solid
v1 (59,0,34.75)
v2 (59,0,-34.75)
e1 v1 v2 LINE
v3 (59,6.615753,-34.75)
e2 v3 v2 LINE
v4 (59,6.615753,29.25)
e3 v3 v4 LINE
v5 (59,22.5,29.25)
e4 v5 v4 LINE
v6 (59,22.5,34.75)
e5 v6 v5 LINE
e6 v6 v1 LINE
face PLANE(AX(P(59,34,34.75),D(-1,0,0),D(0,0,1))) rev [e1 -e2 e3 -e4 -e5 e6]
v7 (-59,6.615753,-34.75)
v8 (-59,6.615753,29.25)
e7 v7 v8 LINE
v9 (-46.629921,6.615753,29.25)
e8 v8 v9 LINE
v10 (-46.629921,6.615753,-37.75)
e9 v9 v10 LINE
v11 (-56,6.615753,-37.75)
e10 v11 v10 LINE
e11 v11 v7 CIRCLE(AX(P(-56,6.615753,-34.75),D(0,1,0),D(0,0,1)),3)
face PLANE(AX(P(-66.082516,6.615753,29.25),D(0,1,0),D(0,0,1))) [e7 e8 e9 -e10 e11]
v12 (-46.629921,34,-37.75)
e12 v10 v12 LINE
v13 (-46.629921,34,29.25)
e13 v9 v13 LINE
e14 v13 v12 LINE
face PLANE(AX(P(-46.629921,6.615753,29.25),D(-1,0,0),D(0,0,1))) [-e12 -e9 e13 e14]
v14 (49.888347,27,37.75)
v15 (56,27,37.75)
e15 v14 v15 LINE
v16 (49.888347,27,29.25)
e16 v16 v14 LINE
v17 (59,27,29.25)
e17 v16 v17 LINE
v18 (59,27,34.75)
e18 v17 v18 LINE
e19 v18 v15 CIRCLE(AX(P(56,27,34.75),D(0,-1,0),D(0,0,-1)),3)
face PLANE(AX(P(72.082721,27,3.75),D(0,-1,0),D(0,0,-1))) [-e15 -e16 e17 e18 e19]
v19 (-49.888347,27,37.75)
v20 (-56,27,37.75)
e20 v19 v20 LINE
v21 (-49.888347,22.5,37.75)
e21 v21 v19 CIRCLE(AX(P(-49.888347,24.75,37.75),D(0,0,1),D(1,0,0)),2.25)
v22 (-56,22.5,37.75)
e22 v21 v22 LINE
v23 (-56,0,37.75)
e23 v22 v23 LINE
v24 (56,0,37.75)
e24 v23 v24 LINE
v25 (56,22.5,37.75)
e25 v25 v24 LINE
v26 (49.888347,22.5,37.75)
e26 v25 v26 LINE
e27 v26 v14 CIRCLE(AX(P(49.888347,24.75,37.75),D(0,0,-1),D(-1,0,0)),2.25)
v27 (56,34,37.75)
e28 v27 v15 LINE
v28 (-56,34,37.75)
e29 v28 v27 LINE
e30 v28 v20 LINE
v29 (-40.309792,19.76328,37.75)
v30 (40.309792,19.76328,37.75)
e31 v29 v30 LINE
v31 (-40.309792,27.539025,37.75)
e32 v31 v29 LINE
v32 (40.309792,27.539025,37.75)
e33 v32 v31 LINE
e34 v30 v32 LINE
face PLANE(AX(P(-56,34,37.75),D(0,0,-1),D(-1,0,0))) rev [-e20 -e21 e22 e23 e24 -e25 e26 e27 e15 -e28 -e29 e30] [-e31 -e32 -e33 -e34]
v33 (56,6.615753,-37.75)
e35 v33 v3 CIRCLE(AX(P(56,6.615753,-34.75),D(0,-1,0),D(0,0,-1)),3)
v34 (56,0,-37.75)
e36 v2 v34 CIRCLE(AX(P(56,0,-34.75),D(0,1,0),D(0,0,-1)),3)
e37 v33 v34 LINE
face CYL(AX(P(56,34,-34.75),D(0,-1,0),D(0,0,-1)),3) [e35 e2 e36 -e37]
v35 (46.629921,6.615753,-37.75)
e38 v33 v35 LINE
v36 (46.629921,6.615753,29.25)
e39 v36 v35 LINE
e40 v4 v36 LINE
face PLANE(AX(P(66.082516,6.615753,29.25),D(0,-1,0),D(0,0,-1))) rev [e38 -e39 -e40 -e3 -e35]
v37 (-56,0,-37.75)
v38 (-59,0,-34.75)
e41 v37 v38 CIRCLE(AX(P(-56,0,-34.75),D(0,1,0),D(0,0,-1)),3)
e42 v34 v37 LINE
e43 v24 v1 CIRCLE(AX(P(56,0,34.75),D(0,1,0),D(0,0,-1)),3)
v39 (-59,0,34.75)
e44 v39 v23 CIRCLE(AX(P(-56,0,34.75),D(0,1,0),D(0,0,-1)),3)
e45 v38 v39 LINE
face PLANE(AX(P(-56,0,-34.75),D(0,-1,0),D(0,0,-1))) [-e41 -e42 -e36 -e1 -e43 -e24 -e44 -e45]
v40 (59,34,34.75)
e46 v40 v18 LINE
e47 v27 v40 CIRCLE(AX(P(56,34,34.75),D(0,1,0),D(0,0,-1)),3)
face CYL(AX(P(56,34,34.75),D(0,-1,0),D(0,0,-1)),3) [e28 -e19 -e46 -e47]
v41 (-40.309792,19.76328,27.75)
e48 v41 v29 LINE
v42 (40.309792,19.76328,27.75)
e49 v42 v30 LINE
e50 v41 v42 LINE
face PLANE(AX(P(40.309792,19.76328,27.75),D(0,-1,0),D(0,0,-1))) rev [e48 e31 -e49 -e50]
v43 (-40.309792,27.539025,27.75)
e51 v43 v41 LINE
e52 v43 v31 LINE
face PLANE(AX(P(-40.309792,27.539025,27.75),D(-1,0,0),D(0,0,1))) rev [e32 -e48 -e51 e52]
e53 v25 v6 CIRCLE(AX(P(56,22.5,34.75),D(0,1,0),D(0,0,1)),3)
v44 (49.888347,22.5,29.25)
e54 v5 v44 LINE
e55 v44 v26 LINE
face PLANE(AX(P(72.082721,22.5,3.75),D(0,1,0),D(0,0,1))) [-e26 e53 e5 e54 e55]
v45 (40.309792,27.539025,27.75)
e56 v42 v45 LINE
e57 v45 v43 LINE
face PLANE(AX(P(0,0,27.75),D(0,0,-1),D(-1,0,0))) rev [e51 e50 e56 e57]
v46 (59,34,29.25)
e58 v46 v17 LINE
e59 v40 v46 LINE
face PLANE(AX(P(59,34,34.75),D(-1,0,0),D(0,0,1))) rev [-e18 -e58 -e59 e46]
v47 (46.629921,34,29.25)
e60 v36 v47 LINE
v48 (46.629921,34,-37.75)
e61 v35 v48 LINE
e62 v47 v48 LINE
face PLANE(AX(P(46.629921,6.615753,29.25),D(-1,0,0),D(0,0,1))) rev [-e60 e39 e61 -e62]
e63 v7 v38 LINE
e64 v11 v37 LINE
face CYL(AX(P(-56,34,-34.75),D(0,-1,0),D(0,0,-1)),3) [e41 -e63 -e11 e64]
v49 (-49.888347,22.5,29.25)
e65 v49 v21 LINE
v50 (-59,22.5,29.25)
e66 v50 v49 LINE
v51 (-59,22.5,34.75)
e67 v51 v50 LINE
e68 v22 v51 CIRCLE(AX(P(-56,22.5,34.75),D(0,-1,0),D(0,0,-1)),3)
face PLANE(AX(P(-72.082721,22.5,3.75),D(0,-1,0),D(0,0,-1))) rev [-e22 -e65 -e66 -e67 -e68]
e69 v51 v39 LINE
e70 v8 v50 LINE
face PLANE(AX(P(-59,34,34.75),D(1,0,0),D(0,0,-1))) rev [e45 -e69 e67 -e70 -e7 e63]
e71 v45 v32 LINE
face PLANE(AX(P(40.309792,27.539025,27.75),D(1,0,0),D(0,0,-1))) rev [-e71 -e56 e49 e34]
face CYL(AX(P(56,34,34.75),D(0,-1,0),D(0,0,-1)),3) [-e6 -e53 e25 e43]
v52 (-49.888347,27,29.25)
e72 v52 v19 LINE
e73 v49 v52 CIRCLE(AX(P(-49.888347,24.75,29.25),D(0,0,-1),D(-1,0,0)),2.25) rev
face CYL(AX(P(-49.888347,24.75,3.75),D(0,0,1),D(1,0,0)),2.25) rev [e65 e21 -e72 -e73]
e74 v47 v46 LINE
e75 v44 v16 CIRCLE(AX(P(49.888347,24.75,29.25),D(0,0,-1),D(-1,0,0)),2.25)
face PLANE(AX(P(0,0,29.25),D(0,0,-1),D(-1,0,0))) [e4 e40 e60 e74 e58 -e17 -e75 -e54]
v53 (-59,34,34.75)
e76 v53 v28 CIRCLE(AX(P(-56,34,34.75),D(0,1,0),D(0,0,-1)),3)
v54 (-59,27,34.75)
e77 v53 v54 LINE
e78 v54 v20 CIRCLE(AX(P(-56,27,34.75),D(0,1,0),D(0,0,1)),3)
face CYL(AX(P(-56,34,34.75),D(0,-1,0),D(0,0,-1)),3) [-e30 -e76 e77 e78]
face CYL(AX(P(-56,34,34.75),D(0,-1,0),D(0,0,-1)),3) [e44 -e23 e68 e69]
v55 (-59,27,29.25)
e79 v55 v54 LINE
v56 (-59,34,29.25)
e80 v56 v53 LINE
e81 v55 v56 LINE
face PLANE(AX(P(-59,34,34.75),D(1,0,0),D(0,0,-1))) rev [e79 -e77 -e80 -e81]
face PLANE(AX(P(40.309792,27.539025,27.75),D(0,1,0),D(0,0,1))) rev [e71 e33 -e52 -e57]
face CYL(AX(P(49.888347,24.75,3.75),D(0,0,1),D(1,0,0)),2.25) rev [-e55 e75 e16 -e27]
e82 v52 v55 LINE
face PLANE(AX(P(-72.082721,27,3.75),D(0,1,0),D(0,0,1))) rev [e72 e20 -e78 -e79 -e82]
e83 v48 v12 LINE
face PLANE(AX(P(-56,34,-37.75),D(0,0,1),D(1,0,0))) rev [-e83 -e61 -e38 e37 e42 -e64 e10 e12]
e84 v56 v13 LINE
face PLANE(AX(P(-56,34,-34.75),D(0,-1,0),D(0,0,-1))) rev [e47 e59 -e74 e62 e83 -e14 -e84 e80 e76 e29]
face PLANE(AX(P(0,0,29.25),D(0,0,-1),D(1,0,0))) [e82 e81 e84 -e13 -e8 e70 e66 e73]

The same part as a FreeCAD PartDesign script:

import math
import FreeCAD as App
import Part
import Sketcher
from FreeCAD import Vector


def add_polygon(sketch, points):
    """Adds a closed chain of lines whose ends are joined by coincident constraints."""
    first, n = sketch.GeometryCount, len(points)
    for a, b in zip(points, points[1:] + points[:1]):
        sketch.addGeometry(Part.LineSegment(App.Vector(*a, 0), App.Vector(*b, 0)), False)
    for i in range(n):
        sketch.addConstraint(Sketcher.Constraint("Coincident", first + i, 2, first + (i + 1) % n, 1))

doc = App.newDocument("Part")
body = doc.addObject("PartDesign::Body", "Body")

# Sketch on XZ plane
sketch1 = doc.addObject("Sketcher::SketchObject", "Sketch")
body.addObject(sketch1)
sketch1.AttachmentSupport = (doc.XZ_Plane, [""])
sketch1.MapMode = "FlatFace"
sketch1.addGeometry(Part.LineSegment(Vector(-56, 37.8, 0), Vector(56, 37.8, 0)), False)
sketch1.addGeometry(Part.ArcOfCircle(Part.Circle(Vector(56, 34.8, 0), Vector(0, 0, 1), 3), math.radians(0), math.radians(90)), False)
sketch1.addGeometry(Part.LineSegment(Vector(59, 34.8, 0), Vector(59, -34.8, 0)), False)
sketch1.addGeometry(Part.ArcOfCircle(Part.Circle(Vector(56, -34.8, 0), Vector(0, 0, 1), 3), math.radians(-90), math.radians(0)), False)
sketch1.addGeometry(Part.LineSegment(Vector(56, -37.8, 0), Vector(-56, -37.8, 0)), False)
sketch1.addGeometry(Part.ArcOfCircle(Part.Circle(Vector(-56, -34.8, 0), Vector(0, 0, 1), 3), math.radians(180), math.radians(270)), False)
sketch1.addGeometry(Part.LineSegment(Vector(-59, -34.8, 0), Vector(-59, 34.8, 0)), False)
sketch1.addGeometry(Part.ArcOfCircle(Part.Circle(Vector(-56, 34.8, 0), Vector(0, 0, 1), 3), math.radians(90), math.radians(180)), False)
sketch1.addConstraint(Sketcher.Constraint("Tangent", 0, 2, 1, 2))
sketch1.addConstraint(Sketcher.Constraint("Tangent", 1, 1, 2, 1))
sketch1.addConstraint(Sketcher.Constraint("Tangent", 2, 2, 3, 2))
sketch1.addConstraint(Sketcher.Constraint("Tangent", 3, 1, 4, 1))
sketch1.addConstraint(Sketcher.Constraint("Tangent", 4, 2, 5, 2))
sketch1.addConstraint(Sketcher.Constraint("Tangent", 5, 1, 6, 1))
sketch1.addConstraint(Sketcher.Constraint("Tangent", 6, 2, 7, 2))
sketch1.addConstraint(Sketcher.Constraint("Tangent", 7, 1, 0, 1))
sketch1.addConstraint(Sketcher.Constraint("Horizontal", 0))
sketch1.addConstraint(Sketcher.Constraint("Vertical", 2))
sketch1.addConstraint(Sketcher.Constraint("Horizontal", 4))
sketch1.addConstraint(Sketcher.Constraint("Vertical", 6))
sketch1.addConstraint(Sketcher.Constraint("Equal", 1, 3))
sketch1.addConstraint(Sketcher.Constraint("Equal", 3, 5))
sketch1.addConstraint(Sketcher.Constraint("Equal", 5, 7))
sketch1.addConstraint(Sketcher.Constraint("Symmetric", 1, 3, 5, 3, -1, 1))
sketch1.addConstraint(Sketcher.Constraint("Radius", 1, 3.0))
sketch1.addConstraint(Sketcher.Constraint("DistanceX", 0, 1, 0, 2, 112.0))
sketch1.addConstraint(Sketcher.Constraint("DistanceY", 2, 2, 2, 1, 69.5))
pad1 = doc.addObject("PartDesign::Pad", "Pad")
body.addObject(pad1)
pad1.Profile = sketch1
pad1.Length = 34
pad1.Reversed = True

# Sketch on XY plane
sketch2 = doc.addObject("Sketcher::SketchObject", "Sketch001")
body.addObject(sketch2)
sketch2.AttachmentSupport = (doc.XY_Plane, [""])
sketch2.MapMode = "FlatFace"
sketch2.AttachmentOffset = App.Placement(Vector(0, 0, 37.75), App.Rotation())
sketch2.addGeometry(Part.LineSegment(Vector(-49.9, 27, 0), Vector(-72.1, 27, 0)), False)
sketch2.addGeometry(Part.ArcOfCircle(Part.Circle(Vector(-72.1, 24.8, 0), Vector(0, 0, 1), 2.2), math.radians(90), math.radians(270)), False)
sketch2.addGeometry(Part.LineSegment(Vector(-72.1, 22.5, 0), Vector(-49.9, 22.5, 0)), False)
sketch2.addGeometry(Part.ArcOfCircle(Part.Circle(Vector(-49.9, 24.8, 0), Vector(0, 0, 1), 2.2), math.radians(-90), math.radians(90)), False)
sketch2.addConstraint(Sketcher.Constraint("Tangent", 0, 2, 1, 1))
sketch2.addConstraint(Sketcher.Constraint("Tangent", 1, 2, 2, 1))
sketch2.addConstraint(Sketcher.Constraint("Tangent", 2, 2, 3, 1))
sketch2.addConstraint(Sketcher.Constraint("Tangent", 3, 2, 0, 1))
sketch2.addConstraint(Sketcher.Constraint("Horizontal", 0))
sketch2.addConstraint(Sketcher.Constraint("Horizontal", 2))
sketch2.addConstraint(Sketcher.Constraint("Radius", 1, 2.25))
sketch2.addConstraint(Sketcher.Constraint("DistanceY", -1, 1, 0, 2, 27.0))
sketch2.addConstraint(Sketcher.Constraint("DistanceX", 0, 2, 0, 1, 22.194374))
sketch2.addConstraint(Sketcher.Constraint("DistanceX", 1, 3, -1, 1, 72.082721))
pocket1 = doc.addObject("PartDesign::Pocket", "Pocket")
body.addObject(pocket1)
pocket1.Profile = sketch2
pocket1.Length = 34
doc.recompute()

mirrored = doc.addObject("PartDesign::Mirrored", "Mirrored")
body.addObject(mirrored)
mirrored.Originals = [pocket1]
mirrored.MirrorPlane = (doc.YZ_Plane, [""])
body.Tip = mirrored

# Sketch on XY plane
sketch3 = doc.addObject("Sketcher::SketchObject", "Sketch002")
body.addObject(sketch3)
sketch3.AttachmentSupport = (doc.XY_Plane, [""])
sketch3.MapMode = "FlatFace"
sketch3.AttachmentOffset = App.Placement(Vector(0, 0, -37.75), App.Rotation())
add_polygon(sketch3, [(66, 41), (66, 7), (47, 7), (47, 41)])  # lines 0-3
sketch3.addConstraint(Sketcher.Constraint("Vertical", 0))
sketch3.addConstraint(Sketcher.Constraint("Horizontal", 1))
sketch3.addConstraint(Sketcher.Constraint("Vertical", 2))
sketch3.addConstraint(Sketcher.Constraint("Horizontal", 3))
sketch3.addConstraint(Sketcher.Constraint("DistanceX", 1, 2, 1, 1, 19.452596))
sketch3.addConstraint(Sketcher.Constraint("DistanceY", 0, 2, 0, 1, 34.121613))
sketch3.addConstraint(Sketcher.Constraint("DistanceX", -1, 1, 1, 2, 46.629921))
sketch3.addConstraint(Sketcher.Constraint("DistanceY", -1, 1, 0, 2, 6.615753))
pocket2 = doc.addObject("PartDesign::Pocket", "Pocket001")
body.addObject(pocket2)
pocket2.Profile = sketch3
pocket2.Length = 67
pocket2.Reversed = True
doc.recompute()

mirrored2 = doc.addObject("PartDesign::Mirrored", "Mirrored001")
body.addObject(mirrored2)
mirrored2.Originals = [pocket2]
mirrored2.MirrorPlane = (doc.YZ_Plane, [""])
body.Tip = mirrored2

# Sketch on XY plane
sketch4 = doc.addObject("Sketcher::SketchObject", "Sketch003")
body.addObject(sketch4)
sketch4.AttachmentSupport = (doc.XY_Plane, [""])
sketch4.MapMode = "FlatFace"
sketch4.AttachmentOffset = App.Placement(Vector(0, 0, 37.75), App.Rotation())
add_polygon(sketch4, [(-40, 28), (-40, 20), (40, 20), (40, 28)])  # lines 0-3
sketch4.addConstraint(Sketcher.Constraint("Vertical", 0))
sketch4.addConstraint(Sketcher.Constraint("Horizontal", 1))
sketch4.addConstraint(Sketcher.Constraint("Vertical", 2))
sketch4.addConstraint(Sketcher.Constraint("Horizontal", 3))
sketch4.addConstraint(Sketcher.Constraint("DistanceX", 1, 1, 1, 2, 80.619585))
sketch4.addConstraint(Sketcher.Constraint("DistanceY", 0, 2, 0, 1, 7.775745))
sketch4.addConstraint(Sketcher.Constraint("DistanceY", -1, 1, 0, 2, 19.76328))
sketch4.addConstraint(Sketcher.Constraint("DistanceX", 0, 2, -1, 1, 40.309792))
pocket3 = doc.addObject("PartDesign::Pocket", "Pocket002")
body.addObject(pocket3)
pocket3.Profile = sketch4
pocket3.Length = 10

doc.recompute()
